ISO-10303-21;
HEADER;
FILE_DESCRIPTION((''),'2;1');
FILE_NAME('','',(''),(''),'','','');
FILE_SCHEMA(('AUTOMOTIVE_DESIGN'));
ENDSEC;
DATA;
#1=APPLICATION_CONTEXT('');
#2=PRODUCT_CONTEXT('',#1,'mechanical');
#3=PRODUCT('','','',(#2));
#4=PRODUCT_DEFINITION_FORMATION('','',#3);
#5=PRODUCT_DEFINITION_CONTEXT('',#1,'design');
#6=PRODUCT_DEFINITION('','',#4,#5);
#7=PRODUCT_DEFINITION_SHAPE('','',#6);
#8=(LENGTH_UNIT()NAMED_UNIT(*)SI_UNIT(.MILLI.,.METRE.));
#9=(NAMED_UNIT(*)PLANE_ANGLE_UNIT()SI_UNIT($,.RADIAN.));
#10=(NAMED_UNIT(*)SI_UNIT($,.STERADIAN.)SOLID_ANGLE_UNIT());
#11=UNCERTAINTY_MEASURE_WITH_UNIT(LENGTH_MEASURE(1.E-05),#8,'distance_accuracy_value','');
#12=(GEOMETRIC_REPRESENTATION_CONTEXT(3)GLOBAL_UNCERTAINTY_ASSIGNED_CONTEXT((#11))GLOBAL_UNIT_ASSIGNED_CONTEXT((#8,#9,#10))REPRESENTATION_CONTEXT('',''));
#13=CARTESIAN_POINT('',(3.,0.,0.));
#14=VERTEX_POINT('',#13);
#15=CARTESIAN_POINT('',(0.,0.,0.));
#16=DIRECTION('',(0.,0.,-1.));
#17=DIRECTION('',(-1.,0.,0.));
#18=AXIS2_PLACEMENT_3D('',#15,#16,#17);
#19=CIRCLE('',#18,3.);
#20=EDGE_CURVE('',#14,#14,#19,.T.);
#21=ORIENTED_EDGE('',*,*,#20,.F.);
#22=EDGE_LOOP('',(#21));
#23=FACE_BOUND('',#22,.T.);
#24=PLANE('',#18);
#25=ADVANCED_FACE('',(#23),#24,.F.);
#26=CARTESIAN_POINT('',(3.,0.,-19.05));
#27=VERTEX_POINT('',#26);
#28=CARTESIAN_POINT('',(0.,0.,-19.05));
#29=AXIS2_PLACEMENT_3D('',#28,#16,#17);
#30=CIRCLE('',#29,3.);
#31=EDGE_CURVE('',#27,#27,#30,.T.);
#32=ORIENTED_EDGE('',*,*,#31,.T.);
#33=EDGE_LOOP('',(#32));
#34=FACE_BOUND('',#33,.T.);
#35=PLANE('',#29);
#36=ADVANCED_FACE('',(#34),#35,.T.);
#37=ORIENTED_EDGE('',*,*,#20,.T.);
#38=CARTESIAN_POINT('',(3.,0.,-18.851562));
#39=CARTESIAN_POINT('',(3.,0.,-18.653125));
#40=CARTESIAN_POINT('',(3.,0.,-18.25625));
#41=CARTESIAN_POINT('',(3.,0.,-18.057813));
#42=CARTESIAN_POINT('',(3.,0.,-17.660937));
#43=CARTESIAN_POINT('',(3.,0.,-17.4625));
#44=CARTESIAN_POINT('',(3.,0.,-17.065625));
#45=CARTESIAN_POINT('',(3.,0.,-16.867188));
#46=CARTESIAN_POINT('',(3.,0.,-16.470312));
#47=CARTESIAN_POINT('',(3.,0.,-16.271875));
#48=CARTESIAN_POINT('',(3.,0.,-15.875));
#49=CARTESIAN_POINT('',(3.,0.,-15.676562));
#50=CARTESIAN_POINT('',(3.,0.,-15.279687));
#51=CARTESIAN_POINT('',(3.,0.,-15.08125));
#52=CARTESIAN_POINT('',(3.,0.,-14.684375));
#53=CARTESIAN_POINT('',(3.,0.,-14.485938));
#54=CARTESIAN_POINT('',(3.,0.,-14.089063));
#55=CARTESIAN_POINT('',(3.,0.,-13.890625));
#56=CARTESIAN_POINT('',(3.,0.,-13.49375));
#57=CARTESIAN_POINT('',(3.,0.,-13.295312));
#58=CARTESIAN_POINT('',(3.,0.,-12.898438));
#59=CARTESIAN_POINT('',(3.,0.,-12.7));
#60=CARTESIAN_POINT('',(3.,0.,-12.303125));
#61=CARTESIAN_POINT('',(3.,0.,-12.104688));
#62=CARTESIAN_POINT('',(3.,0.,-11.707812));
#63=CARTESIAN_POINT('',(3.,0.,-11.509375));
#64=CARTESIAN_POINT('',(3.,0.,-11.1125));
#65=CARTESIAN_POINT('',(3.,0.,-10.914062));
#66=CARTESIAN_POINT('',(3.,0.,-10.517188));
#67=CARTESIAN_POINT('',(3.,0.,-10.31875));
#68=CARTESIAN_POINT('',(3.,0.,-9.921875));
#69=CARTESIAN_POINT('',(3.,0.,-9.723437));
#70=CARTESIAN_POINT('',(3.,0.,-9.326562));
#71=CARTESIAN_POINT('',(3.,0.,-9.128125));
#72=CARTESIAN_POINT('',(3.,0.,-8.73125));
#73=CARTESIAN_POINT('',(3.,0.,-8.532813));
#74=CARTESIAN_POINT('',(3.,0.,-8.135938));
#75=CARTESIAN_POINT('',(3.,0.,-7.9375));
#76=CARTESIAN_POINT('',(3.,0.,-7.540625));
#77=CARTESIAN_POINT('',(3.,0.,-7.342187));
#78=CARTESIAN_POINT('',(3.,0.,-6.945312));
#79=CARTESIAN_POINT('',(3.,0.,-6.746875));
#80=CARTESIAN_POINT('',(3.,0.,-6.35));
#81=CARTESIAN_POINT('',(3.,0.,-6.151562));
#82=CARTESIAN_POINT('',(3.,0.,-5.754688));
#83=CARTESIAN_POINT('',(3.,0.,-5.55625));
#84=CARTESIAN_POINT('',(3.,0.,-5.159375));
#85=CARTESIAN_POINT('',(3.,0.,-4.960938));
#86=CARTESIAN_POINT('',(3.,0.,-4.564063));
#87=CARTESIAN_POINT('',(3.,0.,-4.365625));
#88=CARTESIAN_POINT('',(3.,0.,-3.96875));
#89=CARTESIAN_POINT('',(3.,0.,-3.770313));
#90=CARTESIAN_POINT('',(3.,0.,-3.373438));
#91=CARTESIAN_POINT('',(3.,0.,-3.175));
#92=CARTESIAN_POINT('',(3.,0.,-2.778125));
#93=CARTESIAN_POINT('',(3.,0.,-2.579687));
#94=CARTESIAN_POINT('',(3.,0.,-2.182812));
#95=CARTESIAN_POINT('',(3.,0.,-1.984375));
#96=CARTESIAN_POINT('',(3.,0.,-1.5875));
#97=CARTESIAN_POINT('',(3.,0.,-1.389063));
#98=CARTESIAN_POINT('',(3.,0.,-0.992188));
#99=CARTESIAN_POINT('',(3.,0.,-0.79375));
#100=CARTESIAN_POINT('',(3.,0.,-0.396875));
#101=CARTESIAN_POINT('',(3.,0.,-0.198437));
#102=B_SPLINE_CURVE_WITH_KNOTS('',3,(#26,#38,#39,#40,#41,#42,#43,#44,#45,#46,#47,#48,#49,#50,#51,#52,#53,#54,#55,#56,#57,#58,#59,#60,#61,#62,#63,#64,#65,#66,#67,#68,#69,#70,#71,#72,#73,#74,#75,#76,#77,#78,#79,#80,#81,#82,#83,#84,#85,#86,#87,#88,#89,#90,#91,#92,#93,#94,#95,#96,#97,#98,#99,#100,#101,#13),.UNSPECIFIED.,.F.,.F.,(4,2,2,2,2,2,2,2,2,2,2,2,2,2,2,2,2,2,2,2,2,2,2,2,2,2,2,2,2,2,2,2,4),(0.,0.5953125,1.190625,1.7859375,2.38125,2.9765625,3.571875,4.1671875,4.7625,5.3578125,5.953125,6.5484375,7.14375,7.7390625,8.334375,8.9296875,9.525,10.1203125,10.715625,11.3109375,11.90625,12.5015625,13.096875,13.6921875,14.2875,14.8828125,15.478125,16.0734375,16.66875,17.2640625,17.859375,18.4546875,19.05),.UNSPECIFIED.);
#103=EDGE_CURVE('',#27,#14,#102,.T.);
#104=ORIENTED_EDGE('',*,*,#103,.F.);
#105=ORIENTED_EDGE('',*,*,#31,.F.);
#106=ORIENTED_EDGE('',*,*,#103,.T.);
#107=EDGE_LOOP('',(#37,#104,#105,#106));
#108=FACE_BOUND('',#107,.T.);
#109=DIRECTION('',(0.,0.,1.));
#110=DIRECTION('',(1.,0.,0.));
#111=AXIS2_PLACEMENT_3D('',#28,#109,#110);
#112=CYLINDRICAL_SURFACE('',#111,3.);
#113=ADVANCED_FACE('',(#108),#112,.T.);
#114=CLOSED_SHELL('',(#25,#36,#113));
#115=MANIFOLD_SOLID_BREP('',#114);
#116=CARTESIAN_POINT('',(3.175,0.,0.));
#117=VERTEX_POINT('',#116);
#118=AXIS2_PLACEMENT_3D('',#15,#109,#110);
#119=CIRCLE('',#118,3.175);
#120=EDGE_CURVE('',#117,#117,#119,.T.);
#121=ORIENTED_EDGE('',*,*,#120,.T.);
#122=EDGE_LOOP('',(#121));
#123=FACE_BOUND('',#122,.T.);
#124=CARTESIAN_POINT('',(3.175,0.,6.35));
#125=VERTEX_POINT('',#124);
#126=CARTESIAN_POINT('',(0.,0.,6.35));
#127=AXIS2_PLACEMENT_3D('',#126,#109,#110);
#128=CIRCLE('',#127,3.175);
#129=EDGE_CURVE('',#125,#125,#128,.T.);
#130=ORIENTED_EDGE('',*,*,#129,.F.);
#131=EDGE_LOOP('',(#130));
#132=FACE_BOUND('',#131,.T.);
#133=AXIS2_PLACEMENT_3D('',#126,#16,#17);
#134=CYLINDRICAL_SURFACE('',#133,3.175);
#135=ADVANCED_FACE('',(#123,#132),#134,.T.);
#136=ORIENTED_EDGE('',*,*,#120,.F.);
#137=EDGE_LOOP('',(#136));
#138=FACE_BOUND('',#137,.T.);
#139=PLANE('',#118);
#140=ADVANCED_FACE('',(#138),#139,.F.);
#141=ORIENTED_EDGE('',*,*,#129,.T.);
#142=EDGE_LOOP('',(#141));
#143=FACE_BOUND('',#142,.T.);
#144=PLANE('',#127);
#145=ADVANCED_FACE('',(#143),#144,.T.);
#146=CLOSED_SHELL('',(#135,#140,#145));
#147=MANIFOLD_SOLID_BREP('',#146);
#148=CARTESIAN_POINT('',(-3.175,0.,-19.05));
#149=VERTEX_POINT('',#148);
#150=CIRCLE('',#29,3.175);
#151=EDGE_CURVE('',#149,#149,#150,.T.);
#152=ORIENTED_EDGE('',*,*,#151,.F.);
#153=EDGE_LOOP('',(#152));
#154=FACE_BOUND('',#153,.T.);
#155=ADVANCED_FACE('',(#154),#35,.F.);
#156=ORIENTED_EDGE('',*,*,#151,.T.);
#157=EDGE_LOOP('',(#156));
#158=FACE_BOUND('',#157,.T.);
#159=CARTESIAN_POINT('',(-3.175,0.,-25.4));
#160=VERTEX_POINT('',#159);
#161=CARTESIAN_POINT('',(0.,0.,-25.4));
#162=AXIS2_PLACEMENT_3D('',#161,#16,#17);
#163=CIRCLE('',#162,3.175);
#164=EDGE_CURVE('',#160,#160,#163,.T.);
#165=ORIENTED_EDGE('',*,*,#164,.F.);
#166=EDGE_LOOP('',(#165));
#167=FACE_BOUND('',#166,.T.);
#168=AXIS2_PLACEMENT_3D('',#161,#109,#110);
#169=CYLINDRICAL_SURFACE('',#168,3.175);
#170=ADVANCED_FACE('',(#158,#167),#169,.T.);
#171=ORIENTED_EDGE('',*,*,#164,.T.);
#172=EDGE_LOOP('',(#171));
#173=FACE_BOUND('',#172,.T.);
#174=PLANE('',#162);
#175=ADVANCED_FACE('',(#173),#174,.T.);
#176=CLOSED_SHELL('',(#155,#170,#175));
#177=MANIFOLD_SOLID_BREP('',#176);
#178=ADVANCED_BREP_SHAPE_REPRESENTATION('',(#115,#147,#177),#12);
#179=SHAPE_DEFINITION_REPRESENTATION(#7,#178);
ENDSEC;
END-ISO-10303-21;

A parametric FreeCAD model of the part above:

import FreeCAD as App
import Part
import Sketcher
Q = App.Units.Quantity

doc = App.newDocument("Part")
body = doc.addObject("PartDesign::Body", "Body")

# Sketch on XY plane
sketch1 = body.newObject("Sketcher::SketchObject", "Sketch")
sketch1.AttachmentSupport = (doc.getObject("XY_Plane"), [""])
sketch1.MapMode = "FlatFace"
sketch1.addGeometry(Part.Circle(App.Vector(0, 0, 0), App.Vector(0, 0, 1), 3.2), False)
sketch1.addConstraint([
    Sketcher.Constraint("Coincident", 0, 3, -1, 1),
    Sketcher.Constraint("Diameter", 0, Q("0.25 in")),
])
pad1 = body.newObject("PartDesign::Pad", "Pad")
pad1.Profile = sketch1
pad1.Length = Q("0.25 in")
body2 = doc.addObject("PartDesign::Body", "Body001")

# Sketch on XY plane
sketch2 = body2.newObject("Sketcher::SketchObject", "Sketch001")
sketch2.AttachmentSupport = (doc.getObject("XY_Plane001"), [""])
sketch2.MapMode = "FlatFace"
sketch2.addGeometry(Part.Circle(App.Vector(0, 0, 0), App.Vector(0, 0, 1), 3), False)
sketch2.addConstraint([
    Sketcher.Constraint("Coincident", 0, 3, -1, 1),
    Sketcher.Constraint("Diameter", 0, 6.0),
])
pad2 = body2.newObject("PartDesign::Pad", "Pad001")
pad2.Profile = sketch2
pad2.Length = Q("0.75 in")
pad2.Reversed = True
body3 = doc.addObject("PartDesign::Body", "Body002")

# Sketch on XY plane
sketch3 = body3.newObject("Sketcher::SketchObject", "Sketch002")
sketch3.AttachmentSupport = (doc.getObject("XY_Plane002"), [""])
sketch3.MapMode = "FlatFace"
sketch3.AttachmentOffset = App.Placement(App.Vector(0, 0, -0.75 * 25.4), App.Rotation())
sketch3.addGeometry(Part.Circle(App.Vector(0, 0, 0), App.Vector(0, 0, 1), 3.2), False)
sketch3.addConstraint([
    Sketcher.Constraint("Coincident", 0, 3, -1, 1),
    Sketcher.Constraint("Diameter", 0, Q("0.25 in")),
])
pad3 = body3.newObject("PartDesign::Pad", "Pad002")
pad3.Profile = sketch3
pad3.Length = Q("0.25 in")
pad3.Reversed = True

doc.recompute()
